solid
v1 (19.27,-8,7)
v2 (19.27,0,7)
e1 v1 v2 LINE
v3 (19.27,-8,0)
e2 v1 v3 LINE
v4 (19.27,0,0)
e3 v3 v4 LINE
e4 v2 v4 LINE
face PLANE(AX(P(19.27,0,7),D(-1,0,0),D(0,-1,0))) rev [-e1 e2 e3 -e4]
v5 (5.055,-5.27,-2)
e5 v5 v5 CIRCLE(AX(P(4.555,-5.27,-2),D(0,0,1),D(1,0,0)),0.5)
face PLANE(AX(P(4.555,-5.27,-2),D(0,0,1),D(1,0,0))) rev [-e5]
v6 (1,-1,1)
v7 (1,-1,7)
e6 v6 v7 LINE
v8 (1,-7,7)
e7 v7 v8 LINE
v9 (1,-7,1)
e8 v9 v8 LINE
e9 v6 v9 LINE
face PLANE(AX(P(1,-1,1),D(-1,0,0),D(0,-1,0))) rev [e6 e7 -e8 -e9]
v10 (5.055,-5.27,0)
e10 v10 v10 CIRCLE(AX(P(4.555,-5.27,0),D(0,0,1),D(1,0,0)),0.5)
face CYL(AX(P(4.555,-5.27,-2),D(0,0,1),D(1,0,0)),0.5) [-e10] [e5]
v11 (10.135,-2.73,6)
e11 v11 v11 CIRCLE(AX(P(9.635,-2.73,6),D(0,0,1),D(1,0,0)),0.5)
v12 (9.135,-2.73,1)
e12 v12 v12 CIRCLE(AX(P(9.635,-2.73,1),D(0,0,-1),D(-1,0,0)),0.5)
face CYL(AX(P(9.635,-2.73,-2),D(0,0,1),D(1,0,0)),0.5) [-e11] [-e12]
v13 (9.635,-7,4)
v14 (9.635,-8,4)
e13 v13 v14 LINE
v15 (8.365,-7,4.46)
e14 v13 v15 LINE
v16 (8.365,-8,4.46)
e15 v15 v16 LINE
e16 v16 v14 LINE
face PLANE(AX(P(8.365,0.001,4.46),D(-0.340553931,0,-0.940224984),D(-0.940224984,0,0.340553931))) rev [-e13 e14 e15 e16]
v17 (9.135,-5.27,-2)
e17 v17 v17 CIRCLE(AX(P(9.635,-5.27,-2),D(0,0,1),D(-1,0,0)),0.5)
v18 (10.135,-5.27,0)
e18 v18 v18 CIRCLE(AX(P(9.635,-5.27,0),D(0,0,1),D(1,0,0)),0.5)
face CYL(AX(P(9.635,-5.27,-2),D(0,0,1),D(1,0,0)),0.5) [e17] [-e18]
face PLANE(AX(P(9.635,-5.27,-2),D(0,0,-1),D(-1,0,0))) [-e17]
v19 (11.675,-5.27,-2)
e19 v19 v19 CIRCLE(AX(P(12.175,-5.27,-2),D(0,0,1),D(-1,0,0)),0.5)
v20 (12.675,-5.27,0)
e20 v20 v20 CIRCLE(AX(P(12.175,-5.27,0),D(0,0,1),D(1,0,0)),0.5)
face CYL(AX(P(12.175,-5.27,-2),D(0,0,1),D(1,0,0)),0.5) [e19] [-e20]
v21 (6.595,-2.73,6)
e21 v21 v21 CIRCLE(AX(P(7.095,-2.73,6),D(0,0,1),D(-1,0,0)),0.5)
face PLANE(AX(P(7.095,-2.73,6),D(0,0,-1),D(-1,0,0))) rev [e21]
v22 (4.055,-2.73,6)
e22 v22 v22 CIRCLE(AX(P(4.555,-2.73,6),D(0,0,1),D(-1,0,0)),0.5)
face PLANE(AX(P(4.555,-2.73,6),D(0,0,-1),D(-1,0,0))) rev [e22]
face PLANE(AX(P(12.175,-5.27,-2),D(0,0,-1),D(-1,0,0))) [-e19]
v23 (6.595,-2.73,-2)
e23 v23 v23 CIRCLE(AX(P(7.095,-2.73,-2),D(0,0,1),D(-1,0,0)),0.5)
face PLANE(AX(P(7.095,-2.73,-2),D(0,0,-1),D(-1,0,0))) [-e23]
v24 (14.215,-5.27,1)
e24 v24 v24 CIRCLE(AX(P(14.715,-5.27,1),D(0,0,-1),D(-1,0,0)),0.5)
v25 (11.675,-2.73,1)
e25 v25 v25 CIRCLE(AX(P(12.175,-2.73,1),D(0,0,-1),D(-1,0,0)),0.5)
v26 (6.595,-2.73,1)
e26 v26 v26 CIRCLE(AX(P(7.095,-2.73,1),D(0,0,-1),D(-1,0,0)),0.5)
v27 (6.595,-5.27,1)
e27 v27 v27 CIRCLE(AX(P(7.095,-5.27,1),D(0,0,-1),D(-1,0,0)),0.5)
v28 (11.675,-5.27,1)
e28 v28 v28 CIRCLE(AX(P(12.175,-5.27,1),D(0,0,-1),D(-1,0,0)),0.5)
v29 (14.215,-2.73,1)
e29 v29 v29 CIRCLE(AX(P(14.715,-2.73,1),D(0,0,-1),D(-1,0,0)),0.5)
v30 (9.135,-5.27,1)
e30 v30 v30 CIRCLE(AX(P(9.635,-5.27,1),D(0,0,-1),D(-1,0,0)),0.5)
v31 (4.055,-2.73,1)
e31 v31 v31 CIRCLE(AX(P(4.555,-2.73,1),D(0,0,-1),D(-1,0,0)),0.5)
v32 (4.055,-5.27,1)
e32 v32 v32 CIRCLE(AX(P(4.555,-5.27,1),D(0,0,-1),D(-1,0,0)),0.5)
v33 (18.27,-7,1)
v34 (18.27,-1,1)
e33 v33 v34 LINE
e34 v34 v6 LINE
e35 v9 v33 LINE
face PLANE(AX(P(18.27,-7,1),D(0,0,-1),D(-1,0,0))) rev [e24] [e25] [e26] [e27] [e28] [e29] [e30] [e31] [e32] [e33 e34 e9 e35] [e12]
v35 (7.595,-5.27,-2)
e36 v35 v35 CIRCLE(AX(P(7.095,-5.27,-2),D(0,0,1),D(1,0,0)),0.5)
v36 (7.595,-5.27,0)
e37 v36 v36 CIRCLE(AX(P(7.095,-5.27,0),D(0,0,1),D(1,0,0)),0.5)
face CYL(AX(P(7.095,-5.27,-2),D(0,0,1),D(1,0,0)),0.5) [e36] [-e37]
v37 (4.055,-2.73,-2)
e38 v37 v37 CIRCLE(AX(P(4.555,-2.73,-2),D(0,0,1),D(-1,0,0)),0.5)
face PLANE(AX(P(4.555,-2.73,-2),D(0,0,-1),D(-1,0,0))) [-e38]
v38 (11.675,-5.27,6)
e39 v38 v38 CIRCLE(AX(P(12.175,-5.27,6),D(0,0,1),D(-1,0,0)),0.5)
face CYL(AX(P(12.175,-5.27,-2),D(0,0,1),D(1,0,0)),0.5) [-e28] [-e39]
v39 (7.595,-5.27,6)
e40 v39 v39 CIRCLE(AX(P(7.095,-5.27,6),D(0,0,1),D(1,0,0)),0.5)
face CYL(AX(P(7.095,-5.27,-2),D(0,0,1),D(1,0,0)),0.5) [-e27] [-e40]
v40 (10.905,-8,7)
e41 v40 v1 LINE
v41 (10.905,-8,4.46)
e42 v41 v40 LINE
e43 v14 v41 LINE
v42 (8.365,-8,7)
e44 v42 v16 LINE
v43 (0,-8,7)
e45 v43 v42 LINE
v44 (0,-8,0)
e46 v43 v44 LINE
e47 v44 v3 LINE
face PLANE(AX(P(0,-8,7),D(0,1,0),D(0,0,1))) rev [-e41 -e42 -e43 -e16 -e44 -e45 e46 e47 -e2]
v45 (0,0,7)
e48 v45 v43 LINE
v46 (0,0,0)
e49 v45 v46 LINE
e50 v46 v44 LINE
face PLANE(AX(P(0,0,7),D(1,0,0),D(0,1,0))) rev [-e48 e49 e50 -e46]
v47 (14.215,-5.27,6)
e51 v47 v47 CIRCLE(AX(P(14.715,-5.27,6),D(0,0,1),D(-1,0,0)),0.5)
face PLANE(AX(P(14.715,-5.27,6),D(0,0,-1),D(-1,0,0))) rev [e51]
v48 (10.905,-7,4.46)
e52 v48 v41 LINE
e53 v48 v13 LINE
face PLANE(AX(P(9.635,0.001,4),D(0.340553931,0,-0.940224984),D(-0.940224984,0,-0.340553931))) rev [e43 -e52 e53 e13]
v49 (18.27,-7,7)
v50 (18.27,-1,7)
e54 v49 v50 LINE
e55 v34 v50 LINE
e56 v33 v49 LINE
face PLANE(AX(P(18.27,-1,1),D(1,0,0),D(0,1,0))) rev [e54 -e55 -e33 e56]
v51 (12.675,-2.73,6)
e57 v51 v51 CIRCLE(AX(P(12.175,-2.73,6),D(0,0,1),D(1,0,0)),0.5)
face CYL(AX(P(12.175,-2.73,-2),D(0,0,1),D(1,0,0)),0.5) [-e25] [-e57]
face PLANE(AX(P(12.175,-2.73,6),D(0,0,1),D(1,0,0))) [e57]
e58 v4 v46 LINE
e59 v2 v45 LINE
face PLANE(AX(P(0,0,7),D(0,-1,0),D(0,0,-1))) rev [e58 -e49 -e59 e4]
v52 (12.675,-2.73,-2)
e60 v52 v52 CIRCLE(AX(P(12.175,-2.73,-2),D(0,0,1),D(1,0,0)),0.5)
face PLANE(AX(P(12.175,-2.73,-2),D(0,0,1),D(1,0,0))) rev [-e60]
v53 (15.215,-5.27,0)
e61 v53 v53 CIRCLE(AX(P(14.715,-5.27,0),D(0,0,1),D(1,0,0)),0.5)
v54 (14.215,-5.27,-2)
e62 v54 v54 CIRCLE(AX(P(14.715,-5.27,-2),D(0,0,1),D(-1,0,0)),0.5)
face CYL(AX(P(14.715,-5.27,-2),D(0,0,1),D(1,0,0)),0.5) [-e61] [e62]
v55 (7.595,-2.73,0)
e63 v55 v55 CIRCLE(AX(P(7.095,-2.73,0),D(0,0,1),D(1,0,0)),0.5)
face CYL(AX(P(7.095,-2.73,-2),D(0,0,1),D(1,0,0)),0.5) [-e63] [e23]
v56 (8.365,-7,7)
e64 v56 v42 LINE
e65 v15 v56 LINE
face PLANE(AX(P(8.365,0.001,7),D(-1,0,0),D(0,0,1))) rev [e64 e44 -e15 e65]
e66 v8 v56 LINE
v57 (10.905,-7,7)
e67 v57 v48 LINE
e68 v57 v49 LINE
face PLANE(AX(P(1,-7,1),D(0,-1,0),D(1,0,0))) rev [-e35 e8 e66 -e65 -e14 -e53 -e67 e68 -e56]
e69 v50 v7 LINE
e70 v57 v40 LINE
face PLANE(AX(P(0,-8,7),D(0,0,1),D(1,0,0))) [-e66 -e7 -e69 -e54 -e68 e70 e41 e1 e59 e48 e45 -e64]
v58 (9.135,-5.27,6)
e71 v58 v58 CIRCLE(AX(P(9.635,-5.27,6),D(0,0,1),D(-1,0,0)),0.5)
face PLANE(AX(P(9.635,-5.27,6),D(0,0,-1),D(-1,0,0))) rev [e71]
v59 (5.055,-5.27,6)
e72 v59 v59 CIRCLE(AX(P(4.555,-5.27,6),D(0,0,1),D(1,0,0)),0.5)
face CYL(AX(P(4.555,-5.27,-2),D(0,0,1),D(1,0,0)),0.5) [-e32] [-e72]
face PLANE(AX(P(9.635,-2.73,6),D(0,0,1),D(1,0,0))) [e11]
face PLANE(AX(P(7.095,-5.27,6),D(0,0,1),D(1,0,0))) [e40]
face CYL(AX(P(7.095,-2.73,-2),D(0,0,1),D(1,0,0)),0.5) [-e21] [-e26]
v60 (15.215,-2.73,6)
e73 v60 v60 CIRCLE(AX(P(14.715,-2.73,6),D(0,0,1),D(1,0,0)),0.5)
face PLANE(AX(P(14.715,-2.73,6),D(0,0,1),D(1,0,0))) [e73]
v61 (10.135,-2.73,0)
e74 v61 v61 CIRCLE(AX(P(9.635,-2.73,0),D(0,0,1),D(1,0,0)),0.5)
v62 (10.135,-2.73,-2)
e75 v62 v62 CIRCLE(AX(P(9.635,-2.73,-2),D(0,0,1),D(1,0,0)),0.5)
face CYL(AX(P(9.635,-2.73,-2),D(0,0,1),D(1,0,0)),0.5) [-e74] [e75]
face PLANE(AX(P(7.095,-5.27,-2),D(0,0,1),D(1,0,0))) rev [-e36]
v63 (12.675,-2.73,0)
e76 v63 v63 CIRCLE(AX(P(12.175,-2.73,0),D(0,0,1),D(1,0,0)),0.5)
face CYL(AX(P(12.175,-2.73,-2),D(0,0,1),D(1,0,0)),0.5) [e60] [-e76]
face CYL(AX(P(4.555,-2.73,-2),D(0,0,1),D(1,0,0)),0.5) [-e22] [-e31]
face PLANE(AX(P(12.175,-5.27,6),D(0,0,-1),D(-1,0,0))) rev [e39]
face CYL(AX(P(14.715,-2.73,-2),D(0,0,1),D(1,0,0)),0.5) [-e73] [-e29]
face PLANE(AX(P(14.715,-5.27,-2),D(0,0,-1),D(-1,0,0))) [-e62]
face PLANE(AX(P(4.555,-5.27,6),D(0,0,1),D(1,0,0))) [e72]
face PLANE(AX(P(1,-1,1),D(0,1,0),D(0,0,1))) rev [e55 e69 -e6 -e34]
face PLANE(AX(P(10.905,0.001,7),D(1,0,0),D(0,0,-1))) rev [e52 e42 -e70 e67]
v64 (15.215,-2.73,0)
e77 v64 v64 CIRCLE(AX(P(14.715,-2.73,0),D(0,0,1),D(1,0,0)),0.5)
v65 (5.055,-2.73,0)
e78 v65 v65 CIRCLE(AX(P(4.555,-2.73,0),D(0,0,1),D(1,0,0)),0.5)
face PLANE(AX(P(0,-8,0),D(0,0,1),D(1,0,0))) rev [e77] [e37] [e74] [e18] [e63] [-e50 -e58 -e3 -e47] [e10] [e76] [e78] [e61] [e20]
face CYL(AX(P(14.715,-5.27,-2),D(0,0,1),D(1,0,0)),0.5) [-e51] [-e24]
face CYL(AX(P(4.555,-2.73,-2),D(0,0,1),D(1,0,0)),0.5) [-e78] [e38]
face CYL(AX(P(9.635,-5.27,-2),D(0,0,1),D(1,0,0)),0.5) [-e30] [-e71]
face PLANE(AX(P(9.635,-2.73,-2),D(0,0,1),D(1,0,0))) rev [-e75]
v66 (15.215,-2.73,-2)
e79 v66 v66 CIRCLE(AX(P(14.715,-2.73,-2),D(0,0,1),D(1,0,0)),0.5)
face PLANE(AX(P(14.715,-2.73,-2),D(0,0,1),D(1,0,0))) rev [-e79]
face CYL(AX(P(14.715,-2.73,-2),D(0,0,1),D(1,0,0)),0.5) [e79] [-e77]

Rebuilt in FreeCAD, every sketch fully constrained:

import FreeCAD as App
import Part
import Sketcher
from FreeCAD import Vector

doc = App.newDocument("Part")
body = doc.addObject("PartDesign::Body", "Body")

# Sketch on XY plane
sketch1 = body.newObject("Sketcher::SketchObject", "Sketch")
sketch1.AttachmentSupport = (doc.getObject("XY_Plane"), [""])
sketch1.MapMode = "FlatFace"
sketch1.addGeometry([
    Part.LineSegment(Vector(0, 0, 0), Vector(0, -8, 0)),
    Part.LineSegment(Vector(0, -8, 0), Vector(19, -8, 0)),
    Part.LineSegment(Vector(19, -8, 0), Vector(19, 0, 0)),
    Part.LineSegment(Vector(19, 0, 0), Vector(0, 0, 0)),
], False)
sketch1.addConstraint([
    Sketcher.Constraint("Coincident", 0, 2, 1, 1),
    Sketcher.Constraint("Coincident", 1, 2, 2, 1),
    Sketcher.Constraint("Coincident", 2, 2, 3, 1),
    Sketcher.Constraint("Coincident", 3, 2, 0, 1),
    Sketcher.Constraint("Vertical", 0),
    Sketcher.Constraint("Horizontal", 1),
    Sketcher.Constraint("Vertical", 2),
    Sketcher.Constraint("Horizontal", 3),
    Sketcher.Constraint("Coincident", 3, 2, -1, 1),
    Sketcher.Constraint("DistanceY", 0, 2, 0, 1, 8.0),
    Sketcher.Constraint("DistanceX", 1, 1, 1, 2, 19.27),
])
pad1 = body.newObject("PartDesign::Pad", "Pad")
pad1.Profile = sketch1
pad1.Length = 7

# Sketch on XY plane
sketch2 = body.newObject("Sketcher::SketchObject", "Sketch001")
sketch2.AttachmentSupport = (doc.getObject("XY_Plane"), [""])
sketch2.MapMode = "FlatFace"
sketch2.AttachmentOffset = App.Placement(Vector(0, 0, 7), App.Rotation())
sketch2.addGeometry([
    Part.LineSegment(Vector(1, -1, 0), Vector(1, -7, 0)),
    Part.LineSegment(Vector(1, -7, 0), Vector(18, -7, 0)),
    Part.LineSegment(Vector(18, -7, 0), Vector(18, -1, 0)),
    Part.LineSegment(Vector(18, -1, 0), Vector(1, -1, 0)),
], False)
sketch2.addConstraint([
    Sketcher.Constraint("Coincident", 0, 2, 1, 1),
    Sketcher.Constraint("Coincident", 1, 2, 2, 1),
    Sketcher.Constraint("Coincident", 2, 2, 3, 1),
    Sketcher.Constraint("Coincident", 3, 2, 0, 1),
    Sketcher.Constraint("Vertical", 0),
    Sketcher.Constraint("Horizontal", 1),
    Sketcher.Constraint("Vertical", 2),
    Sketcher.Constraint("Horizontal", 3),
    Sketcher.Constraint("DistanceY", 0, 2, 0, 1, 6.0),
    Sketcher.Constraint("DistanceX", -1, 1, 0, 2, 1.0),
    Sketcher.Constraint("DistanceY", 0, 2, -1, 1, 7.0),
    Sketcher.Constraint("DistanceX", 1, 1, 1, 2, 17.27),
])
pocket1 = body.newObject("PartDesign::Pocket", "Pocket")
pocket1.Profile = sketch2
pocket1.Length = 6

# Sketch on XZ plane
sketch3 = body.newObject("Sketcher::SketchObject", "Sketch002")
sketch3.AttachmentSupport = (doc.getObject("XZ_Plane"), [""])
sketch3.MapMode = "FlatFace"
sketch3.AttachmentOffset = App.Placement(Vector(0, 0, 8), App.Rotation())
sketch3.addGeometry([
    Part.LineSegment(Vector(8.4, 7, 0), Vector(8.4, 4.5, 0)),  # 0
    Part.LineSegment(Vector(8.4, 4.5, 0), Vector(9.6, 4, 0)),  # 1
    Part.LineSegment(Vector(9.6, 4, 0), Vector(10.9, 4.5, 0)),  # 2
    Part.LineSegment(Vector(10.9, 4.5, 0), Vector(10.9, 7, 0)),  # 3
    Part.LineSegment(Vector(10.9, 7, 0), Vector(8.4, 7, 0)),  # 4
], False)
sketch3.addConstraint([
    Sketcher.Constraint("Coincident", 0, 2, 1, 1),
    Sketcher.Constraint("Coincident", 1, 2, 2, 1),
    Sketcher.Constraint("Coincident", 2, 2, 3, 1),
    Sketcher.Constraint("Coincident", 3, 2, 4, 1),
    Sketcher.Constraint("Coincident", 4, 2, 0, 1),
    Sketcher.Constraint("Vertical", 0),
    Sketcher.Constraint("Vertical", 3),
    Sketcher.Constraint("Horizontal", 4),
    Sketcher.Constraint("Horizontal", 0, 2, 2, 2),
    Sketcher.Constraint("Equal", 4, 0),
    Sketcher.Constraint("Equal", 1, 2),
    Sketcher.Constraint("DistanceY", -1, 1, 1, 2, 4.0),
    Sketcher.Constraint("DistanceY", -1, 1, 3, 2, 7.0),
    Sketcher.Constraint("DistanceX", 4, 2, 4, 1, 2.54),
    Sketcher.Constraint("DistanceX", -1, 1, 0, 2, 8.365),
])
pocket2 = body.newObject("PartDesign::Pocket", "Pocket001")
pocket2.Profile = sketch3
pocket2.Type = "UpToFirst"

# Sketch on XY plane
sketch4 = body.newObject("Sketcher::SketchObject", "Sketch003")
sketch4.AttachmentSupport = (doc.getObject("XY_Plane"), [""])
sketch4.MapMode = "FlatFace"
sketch4.AttachmentOffset = App.Placement(Vector(0, 0, 1), App.Rotation())
sketch4.addGeometry([
    Part.Circle(Vector(9.6, -2.7, 0), Vector(0, 0, 1), 0.5),  # 0
    Part.Circle(Vector(12.2, -2.7, 0), Vector(0, 0, 1), 0.5),  # 1
    Part.Circle(Vector(14.7, -2.7, 0), Vector(0, 0, 1), 0.5),  # 2
    Part.Circle(Vector(4.6, -2.7, 0), Vector(0, 0, 1), 0.5),  # 3
    Part.Circle(Vector(7.1, -2.7, 0), Vector(0, 0, 1), 0.5),  # 4
    Part.Circle(Vector(14.7, -5.3, 0), Vector(0, 0, 1), 0.5),  # 5
    Part.Circle(Vector(12.2, -5.3, 0), Vector(0, 0, 1), 0.5),  # 6
    Part.Circle(Vector(9.6, -5.3, 0), Vector(0, 0, 1), 0.5),  # 7
    Part.Circle(Vector(7.1, -5.3, 0), Vector(0, 0, 1), 0.5),  # 8
    Part.Circle(Vector(4.6, -5.3, 0), Vector(0, 0, 1), 0.5),  # 9
], False)
sketch4.addConstraint([
    Sketcher.Constraint("Equal", 0, 1),
    Sketcher.Constraint("Equal", 1, 2),
    Sketcher.Constraint("Equal", 2, 3),
    Sketcher.Constraint("Equal", 3, 4),
    Sketcher.Constraint("Equal", 4, 5),
    Sketcher.Constraint("Equal", 5, 6),
    Sketcher.Constraint("Equal", 6, 7),
    Sketcher.Constraint("Equal", 7, 8),
    Sketcher.Constraint("Equal", 8, 9),
    Sketcher.Constraint("Horizontal", 0, 3, 1, 3),
    Sketcher.Constraint("Horizontal", 1, 3, 2, 3),
    Sketcher.Constraint("Horizontal", 2, 3, 3, 3),
    Sketcher.Constraint("Horizontal", 3, 3, 4, 3),
    Sketcher.Constraint("Horizontal", 5, 3, 6, 3),
    Sketcher.Constraint("Horizontal", 6, 3, 7, 3),
    Sketcher.Constraint("Horizontal", 7, 3, 8, 3),
    Sketcher.Constraint("Horizontal", 8, 3, 9, 3),
    Sketcher.Constraint("Vertical", 2, 3, 5, 3),
    Sketcher.Constraint("Vertical", 1, 3, 6, 3),
    Sketcher.Constraint("Vertical", 0, 3, 7, 3),
    Sketcher.Constraint("Vertical", 4, 3, 8, 3),
    Sketcher.Constraint("Vertical", 3, 3, 9, 3),
    Sketcher.Constraint("Diameter", 0, 1.0),
    Sketcher.Constraint("DistanceY", 0, 3, -1, 1, 2.73),
    Sketcher.Constraint("DistanceY", 5, 3, -1, 1, 5.27),
    Sketcher.Constraint("DistanceX", 0, 3, 1, 3, 2.54),
    Sketcher.Constraint("DistanceX", 1, 3, 2, 3, 2.54),
    Sketcher.Constraint("DistanceX", 3, 3, 0, 3, 5.08),
    Sketcher.Constraint("DistanceX", 4, 3, 0, 3, 2.54),
    Sketcher.Constraint("DistanceX", -1, 1, 0, 3, 9.635),
])
pad2 = body.newObject("PartDesign::Pad", "Pad001")
pad2.Profile = sketch4
pad2.Type = "TwoLengths"
pad2.Length = 5
pad2.Length2 = 3

doc.recompute()
